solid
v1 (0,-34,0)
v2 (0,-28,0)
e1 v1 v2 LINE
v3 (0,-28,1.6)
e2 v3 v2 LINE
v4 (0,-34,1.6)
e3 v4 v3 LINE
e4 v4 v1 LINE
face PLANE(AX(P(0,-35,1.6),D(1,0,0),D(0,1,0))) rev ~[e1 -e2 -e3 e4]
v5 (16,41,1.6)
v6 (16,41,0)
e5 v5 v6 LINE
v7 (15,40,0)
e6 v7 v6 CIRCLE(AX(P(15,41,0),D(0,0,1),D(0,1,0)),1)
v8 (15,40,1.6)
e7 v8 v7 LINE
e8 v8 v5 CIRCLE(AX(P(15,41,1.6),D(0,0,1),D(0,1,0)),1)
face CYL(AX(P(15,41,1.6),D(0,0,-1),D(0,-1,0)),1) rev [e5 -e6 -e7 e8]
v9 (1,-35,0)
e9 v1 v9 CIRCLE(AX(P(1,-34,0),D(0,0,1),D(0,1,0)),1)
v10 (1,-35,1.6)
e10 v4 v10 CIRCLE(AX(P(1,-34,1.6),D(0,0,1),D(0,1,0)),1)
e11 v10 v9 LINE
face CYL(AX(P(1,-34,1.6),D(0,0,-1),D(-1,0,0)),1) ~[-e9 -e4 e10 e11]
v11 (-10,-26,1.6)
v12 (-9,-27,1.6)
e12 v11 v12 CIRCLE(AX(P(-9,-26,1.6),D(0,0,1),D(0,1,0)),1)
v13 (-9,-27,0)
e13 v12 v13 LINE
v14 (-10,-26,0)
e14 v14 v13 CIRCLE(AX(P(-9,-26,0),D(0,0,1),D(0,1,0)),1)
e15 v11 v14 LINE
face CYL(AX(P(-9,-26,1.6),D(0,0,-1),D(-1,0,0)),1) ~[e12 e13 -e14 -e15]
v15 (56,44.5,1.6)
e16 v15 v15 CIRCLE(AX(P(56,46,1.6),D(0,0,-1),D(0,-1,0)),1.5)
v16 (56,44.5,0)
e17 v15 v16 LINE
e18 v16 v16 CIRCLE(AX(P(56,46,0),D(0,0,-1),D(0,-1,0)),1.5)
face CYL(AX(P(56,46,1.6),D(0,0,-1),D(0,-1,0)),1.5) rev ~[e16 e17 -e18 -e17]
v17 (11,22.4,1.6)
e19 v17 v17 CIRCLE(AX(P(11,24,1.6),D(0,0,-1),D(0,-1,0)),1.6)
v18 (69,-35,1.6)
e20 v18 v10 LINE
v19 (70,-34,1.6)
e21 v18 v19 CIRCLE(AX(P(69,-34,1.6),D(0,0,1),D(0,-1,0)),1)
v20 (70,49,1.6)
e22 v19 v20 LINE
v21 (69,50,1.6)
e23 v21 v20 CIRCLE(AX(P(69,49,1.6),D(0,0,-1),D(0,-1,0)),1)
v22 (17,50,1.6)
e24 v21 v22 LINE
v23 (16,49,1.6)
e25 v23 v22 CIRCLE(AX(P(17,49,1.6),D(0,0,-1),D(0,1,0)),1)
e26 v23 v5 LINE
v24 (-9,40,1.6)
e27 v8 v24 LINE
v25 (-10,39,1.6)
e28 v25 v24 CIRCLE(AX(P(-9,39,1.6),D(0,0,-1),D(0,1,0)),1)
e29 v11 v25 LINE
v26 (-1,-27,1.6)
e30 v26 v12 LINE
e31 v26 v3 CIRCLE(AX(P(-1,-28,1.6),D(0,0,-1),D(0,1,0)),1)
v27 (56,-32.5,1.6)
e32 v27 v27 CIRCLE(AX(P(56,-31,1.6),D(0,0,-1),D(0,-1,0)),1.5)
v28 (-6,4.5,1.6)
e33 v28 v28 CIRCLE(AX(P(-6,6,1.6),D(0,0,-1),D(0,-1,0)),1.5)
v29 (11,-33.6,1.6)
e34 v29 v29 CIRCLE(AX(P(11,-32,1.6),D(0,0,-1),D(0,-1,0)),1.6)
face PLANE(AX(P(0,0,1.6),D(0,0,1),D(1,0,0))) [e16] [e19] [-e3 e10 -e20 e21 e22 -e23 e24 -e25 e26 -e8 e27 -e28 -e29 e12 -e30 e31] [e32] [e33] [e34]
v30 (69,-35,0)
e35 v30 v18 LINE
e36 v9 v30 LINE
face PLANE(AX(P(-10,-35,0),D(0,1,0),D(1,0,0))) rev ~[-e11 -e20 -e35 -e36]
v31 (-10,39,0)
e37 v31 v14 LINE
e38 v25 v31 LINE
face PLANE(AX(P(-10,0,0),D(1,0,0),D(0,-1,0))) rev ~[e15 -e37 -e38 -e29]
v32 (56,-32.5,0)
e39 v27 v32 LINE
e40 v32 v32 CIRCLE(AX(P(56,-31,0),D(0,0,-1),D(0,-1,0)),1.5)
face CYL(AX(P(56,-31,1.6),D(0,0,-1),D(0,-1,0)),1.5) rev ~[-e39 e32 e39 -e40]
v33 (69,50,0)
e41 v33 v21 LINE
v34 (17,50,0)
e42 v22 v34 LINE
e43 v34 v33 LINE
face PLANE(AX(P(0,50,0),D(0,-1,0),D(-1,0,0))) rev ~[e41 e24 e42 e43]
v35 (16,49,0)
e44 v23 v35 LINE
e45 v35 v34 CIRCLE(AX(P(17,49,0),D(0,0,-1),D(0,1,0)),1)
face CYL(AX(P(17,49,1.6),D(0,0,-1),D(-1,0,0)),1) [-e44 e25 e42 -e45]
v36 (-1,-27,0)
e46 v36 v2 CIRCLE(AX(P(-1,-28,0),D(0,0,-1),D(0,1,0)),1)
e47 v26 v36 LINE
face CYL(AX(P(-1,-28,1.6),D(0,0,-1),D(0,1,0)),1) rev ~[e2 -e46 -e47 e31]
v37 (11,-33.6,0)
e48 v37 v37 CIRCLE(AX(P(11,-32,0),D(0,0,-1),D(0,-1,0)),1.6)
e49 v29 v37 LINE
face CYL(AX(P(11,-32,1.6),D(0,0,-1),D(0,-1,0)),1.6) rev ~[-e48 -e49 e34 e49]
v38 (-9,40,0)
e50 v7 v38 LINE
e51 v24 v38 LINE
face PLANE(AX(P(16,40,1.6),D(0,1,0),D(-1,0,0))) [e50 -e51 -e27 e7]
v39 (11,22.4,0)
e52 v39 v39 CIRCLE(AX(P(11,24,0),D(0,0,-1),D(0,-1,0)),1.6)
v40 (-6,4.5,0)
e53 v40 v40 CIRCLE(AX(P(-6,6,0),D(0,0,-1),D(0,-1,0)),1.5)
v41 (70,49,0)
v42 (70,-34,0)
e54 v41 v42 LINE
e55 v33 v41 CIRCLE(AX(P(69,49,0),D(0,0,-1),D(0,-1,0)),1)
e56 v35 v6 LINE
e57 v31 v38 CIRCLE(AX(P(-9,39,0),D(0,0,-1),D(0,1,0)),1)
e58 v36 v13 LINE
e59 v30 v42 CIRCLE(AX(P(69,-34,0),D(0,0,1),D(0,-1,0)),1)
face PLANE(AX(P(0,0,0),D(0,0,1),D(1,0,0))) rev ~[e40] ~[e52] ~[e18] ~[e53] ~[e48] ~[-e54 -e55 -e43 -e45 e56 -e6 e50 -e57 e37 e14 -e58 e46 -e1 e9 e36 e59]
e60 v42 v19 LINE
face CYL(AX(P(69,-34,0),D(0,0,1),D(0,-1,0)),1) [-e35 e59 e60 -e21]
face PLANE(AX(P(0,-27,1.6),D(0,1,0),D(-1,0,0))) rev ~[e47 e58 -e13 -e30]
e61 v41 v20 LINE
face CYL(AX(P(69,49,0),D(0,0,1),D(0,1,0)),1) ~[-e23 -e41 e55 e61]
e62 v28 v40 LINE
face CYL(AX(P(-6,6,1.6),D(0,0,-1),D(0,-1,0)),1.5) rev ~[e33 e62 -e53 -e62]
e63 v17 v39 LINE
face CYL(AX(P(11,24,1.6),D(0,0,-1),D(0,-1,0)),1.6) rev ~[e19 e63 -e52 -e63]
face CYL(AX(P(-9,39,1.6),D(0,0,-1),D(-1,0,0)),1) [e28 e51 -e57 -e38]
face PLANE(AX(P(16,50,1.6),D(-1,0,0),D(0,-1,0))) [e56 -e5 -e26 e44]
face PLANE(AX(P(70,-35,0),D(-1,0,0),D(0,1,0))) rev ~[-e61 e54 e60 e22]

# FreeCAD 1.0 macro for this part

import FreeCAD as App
import Part
import Sketcher


def edges_at(feature, points):
    """Names of the edges that pass closest to the given points."""
    edges = feature.Shape.Edges
    near = lambda p: min(range(len(edges)), key=lambda i: edges[i].distToShape(Part.Vertex(*p))[0])
    return sorted({f"Edge{near(p) + 1}" for p in points})

doc = App.newDocument("Part")
body = doc.addObject("PartDesign::Body", "Body")

sketch1 = body.newObject("Sketcher::SketchObject", "Sketch")
sketch1.AttachmentSupport = (doc.getObject("XY_Plane"), [""])
sketch1.MapMode = "FlatFace"
sketch1.addGeometry(Part.LineSegment(App.Vector(-10, -35, 0), App.Vector(70, -35, 0)), False)
sketch1.addGeometry(Part.LineSegment(App.Vector(70, -35, 0), App.Vector(70, 50, 0)), False)
sketch1.addGeometry(Part.LineSegment(App.Vector(70, 50, 0), App.Vector(-10, 50, 0)), False)
sketch1.addGeometry(Part.LineSegment(App.Vector(-10, 50, 0), App.Vector(-10, -35, 0)), False)
sketch1.addConstraint(Sketcher.Constraint("Coincident", 0, 2, 1, 1))
sketch1.addConstraint(Sketcher.Constraint("Coincident", 1, 2, 2, 1))
sketch1.addConstraint(Sketcher.Constraint("Coincident", 2, 2, 3, 1))
sketch1.addConstraint(Sketcher.Constraint("Coincident", 3, 2, 0, 1))
sketch1.addConstraint(Sketcher.Constraint("Horizontal", 0))
sketch1.addConstraint(Sketcher.Constraint("Vertical", 1))
sketch1.addConstraint(Sketcher.Constraint("Horizontal", 2))
sketch1.addConstraint(Sketcher.Constraint("Vertical", 3))
sketch1.addConstraint(Sketcher.Constraint("DistanceX", 0, 1, 0, 2, 80.0))
sketch1.addConstraint(Sketcher.Constraint("DistanceY", 1, 1, 1, 2, 85.0))
sketch1.addConstraint(Sketcher.Constraint("DistanceY", 0, 2, -1, 1, 35.0))
sketch1.addConstraint(Sketcher.Constraint("DistanceX", 2, 2, -1, 1, 10.0))
pad1 = body.newObject("PartDesign::Pad", "Pad")
pad1.Profile = sketch1
pad1.Length = 1.6

sketch2 = body.newObject("Sketcher::SketchObject", "Sketch001")
sketch2.AttachmentSupport = (doc.getObject("XY_Plane"), [""])
sketch2.MapMode = "FlatFace"
sketch2.AttachmentOffset = App.Placement(App.Vector(0, 0, 1.6), App.Rotation())
sketch2.addGeometry(Part.LineSegment(App.Vector(-10, -27, 0), App.Vector(-10, -35, 0)), False)
sketch2.addGeometry(Part.LineSegment(App.Vector(-10, -35, 0), App.Vector(0, -35, 0)), False)
sketch2.addGeometry(Part.LineSegment(App.Vector(0, -35, 0), App.Vector(0, -27, 0)), False)
sketch2.addGeometry(Part.LineSegment(App.Vector(0, -27, 0), App.Vector(-10, -27, 0)), False)
sketch2.addGeometry(Part.LineSegment(App.Vector(-10, 50, 0), App.Vector(-10, 40, 0)), False)
sketch2.addGeometry(Part.LineSegment(App.Vector(-10, 40, 0), App.Vector(16, 40, 0)), False)
sketch2.addGeometry(Part.LineSegment(App.Vector(16, 40, 0), App.Vector(16, 50, 0)), False)
sketch2.addGeometry(Part.LineSegment(App.Vector(16, 50, 0), App.Vector(-10, 50, 0)), False)
sketch2.addConstraint(Sketcher.Constraint("Coincident", 0, 2, 1, 1))
sketch2.addConstraint(Sketcher.Constraint("Coincident", 1, 2, 2, 1))
sketch2.addConstraint(Sketcher.Constraint("Coincident", 2, 2, 3, 1))
sketch2.addConstraint(Sketcher.Constraint("Coincident", 3, 2, 0, 1))
sketch2.addConstraint(Sketcher.Constraint("Coincident", 4, 2, 5, 1))
sketch2.addConstraint(Sketcher.Constraint("Coincident", 5, 2, 6, 1))
sketch2.addConstraint(Sketcher.Constraint("Coincident", 6, 2, 7, 1))
sketch2.addConstraint(Sketcher.Constraint("Coincident", 7, 2, 4, 1))
sketch2.addConstraint(Sketcher.Constraint("Vertical", 0))
sketch2.addConstraint(Sketcher.Constraint("Horizontal", 1))
sketch2.addConstraint(Sketcher.Constraint("Vertical", 2))
sketch2.addConstraint(Sketcher.Constraint("Horizontal", 3))
sketch2.addConstraint(Sketcher.Constraint("Vertical", 4))
sketch2.addConstraint(Sketcher.Constraint("Horizontal", 5))
sketch2.addConstraint(Sketcher.Constraint("Vertical", 6))
sketch2.addConstraint(Sketcher.Constraint("Horizontal", 7))
sketch2.addConstraint(Sketcher.Constraint("PointOnObject", 1, 2, -2))
sketch2.addConstraint(Sketcher.Constraint("Vertical", 3, 2, 4, 2))
sketch2.addConstraint(Sketcher.Constraint("Equal", 3, 4))
sketch2.addConstraint(Sketcher.Constraint("DistanceX", 1, 1, 1, 2, 10.0))
sketch2.addConstraint(Sketcher.Constraint("DistanceX", 5, 1, 5, 2, 26.0))
sketch2.addConstraint(Sketcher.Constraint("DistanceY", 0, 2, 0, 1, 8.0))
sketch2.addConstraint(Sketcher.Constraint("DistanceY", 0, 2, -1, 1, 35.0))
sketch2.addConstraint(Sketcher.Constraint("DistanceY", -1, 1, 4, 2, 40.0))
pocket1 = body.newObject("PartDesign::Pocket", "Pocket")
pocket1.Profile = sketch2
pocket1.Type = "ThroughAll"

sketch3 = body.newObject("Sketcher::SketchObject", "Sketch002")
sketch3.AttachmentSupport = (doc.getObject("XY_Plane"), [""])
sketch3.MapMode = "FlatFace"
sketch3.AttachmentOffset = App.Placement(App.Vector(0, 0, 1.6), App.Rotation())
sketch3.addGeometry(Part.Circle(App.Vector(56, 46, 0), App.Vector(0, 0, 1), 1.5), False)
sketch3.addGeometry(Part.Circle(App.Vector(56, -31, 0), App.Vector(0, 0, 1), 1.5), False)
sketch3.addGeometry(Part.Circle(App.Vector(-6, 6, 0), App.Vector(0, 0, 1), 1.5), False)
sketch3.addConstraint(Sketcher.Constraint("Equal", 0, 1))
sketch3.addConstraint(Sketcher.Constraint("Equal", 1, 2))
sketch3.addConstraint(Sketcher.Constraint("Vertical", 0, 3, 1, 3))
sketch3.addConstraint(Sketcher.Constraint("Diameter", 0, 3.0))
sketch3.addConstraint(Sketcher.Constraint("DistanceX", -1, 1, 0, 3, 56.0))
sketch3.addConstraint(Sketcher.Constraint("DistanceY", -1, 1, 0, 3, 46.0))
sketch3.addConstraint(Sketcher.Constraint("DistanceY", 1, 3, -1, 1, 31.0))
sketch3.addConstraint(Sketcher.Constraint("DistanceX", 2, 3, -1, 1, 6.0))
sketch3.addConstraint(Sketcher.Constraint("DistanceY", -1, 1, 2, 3, 6.0))
doc.recompute()
hole = body.newObject("PartDesign::Hole", "Hole")
hole.Profile = sketch3
hole.ThreadType = "None"
hole.Diameter = 3
hole.DepthType = "ThroughAll"

sketch4 = body.newObject("Sketcher::SketchObject", "Sketch003")
sketch4.AttachmentSupport = (doc.getObject("XY_Plane"), [""])
sketch4.MapMode = "FlatFace"
sketch4.AttachmentOffset = App.Placement(App.Vector(0, 0, 1.6), App.Rotation())
sketch4.addGeometry(Part.Circle(App.Vector(11, 24, 0), App.Vector(0, 0, 1), 1.6), False)
sketch4.addGeometry(Part.Circle(App.Vector(11, -32, 0), App.Vector(0, 0, 1), 1.6), False)
sketch4.addConstraint(Sketcher.Constraint("Equal", 0, 1))
sketch4.addConstraint(Sketcher.Constraint("Vertical", 0, 3, 1, 3))
sketch4.addConstraint(Sketcher.Constraint("Diameter", 0, 3.2))
sketch4.addConstraint(Sketcher.Constraint("DistanceX", -1, 1, 0, 3, 11.0))
sketch4.addConstraint(Sketcher.Constraint("DistanceY", -1, 1, 0, 3, 24.0))
sketch4.addConstraint(Sketcher.Constraint("DistanceY", 1, 3, -1, 1, 32.0))
doc.recompute()
hole2 = body.newObject("PartDesign::Hole", "Hole001")
hole2.Profile = sketch4
hole2.ThreadType = "None"
hole2.Diameter = 3.2
hole2.DepthType = "ThroughAll"
doc.recompute()

fillet = body.newObject("PartDesign::Fillet", "Fillet")
fillet.Base = (hole2, edges_at(hole2, [
    (-10, -27, 0.8),
    (0, -27, 0.8),
    (0, -35, 0.8),
    (70, -35, 0.8),
    (70, 50, 0.8),
    (16, 50, 0.8),
    (16, 40, 0.8),
    (-10, 40, 0.8),
]))
fillet.Radius = 1

doc.recompute()
